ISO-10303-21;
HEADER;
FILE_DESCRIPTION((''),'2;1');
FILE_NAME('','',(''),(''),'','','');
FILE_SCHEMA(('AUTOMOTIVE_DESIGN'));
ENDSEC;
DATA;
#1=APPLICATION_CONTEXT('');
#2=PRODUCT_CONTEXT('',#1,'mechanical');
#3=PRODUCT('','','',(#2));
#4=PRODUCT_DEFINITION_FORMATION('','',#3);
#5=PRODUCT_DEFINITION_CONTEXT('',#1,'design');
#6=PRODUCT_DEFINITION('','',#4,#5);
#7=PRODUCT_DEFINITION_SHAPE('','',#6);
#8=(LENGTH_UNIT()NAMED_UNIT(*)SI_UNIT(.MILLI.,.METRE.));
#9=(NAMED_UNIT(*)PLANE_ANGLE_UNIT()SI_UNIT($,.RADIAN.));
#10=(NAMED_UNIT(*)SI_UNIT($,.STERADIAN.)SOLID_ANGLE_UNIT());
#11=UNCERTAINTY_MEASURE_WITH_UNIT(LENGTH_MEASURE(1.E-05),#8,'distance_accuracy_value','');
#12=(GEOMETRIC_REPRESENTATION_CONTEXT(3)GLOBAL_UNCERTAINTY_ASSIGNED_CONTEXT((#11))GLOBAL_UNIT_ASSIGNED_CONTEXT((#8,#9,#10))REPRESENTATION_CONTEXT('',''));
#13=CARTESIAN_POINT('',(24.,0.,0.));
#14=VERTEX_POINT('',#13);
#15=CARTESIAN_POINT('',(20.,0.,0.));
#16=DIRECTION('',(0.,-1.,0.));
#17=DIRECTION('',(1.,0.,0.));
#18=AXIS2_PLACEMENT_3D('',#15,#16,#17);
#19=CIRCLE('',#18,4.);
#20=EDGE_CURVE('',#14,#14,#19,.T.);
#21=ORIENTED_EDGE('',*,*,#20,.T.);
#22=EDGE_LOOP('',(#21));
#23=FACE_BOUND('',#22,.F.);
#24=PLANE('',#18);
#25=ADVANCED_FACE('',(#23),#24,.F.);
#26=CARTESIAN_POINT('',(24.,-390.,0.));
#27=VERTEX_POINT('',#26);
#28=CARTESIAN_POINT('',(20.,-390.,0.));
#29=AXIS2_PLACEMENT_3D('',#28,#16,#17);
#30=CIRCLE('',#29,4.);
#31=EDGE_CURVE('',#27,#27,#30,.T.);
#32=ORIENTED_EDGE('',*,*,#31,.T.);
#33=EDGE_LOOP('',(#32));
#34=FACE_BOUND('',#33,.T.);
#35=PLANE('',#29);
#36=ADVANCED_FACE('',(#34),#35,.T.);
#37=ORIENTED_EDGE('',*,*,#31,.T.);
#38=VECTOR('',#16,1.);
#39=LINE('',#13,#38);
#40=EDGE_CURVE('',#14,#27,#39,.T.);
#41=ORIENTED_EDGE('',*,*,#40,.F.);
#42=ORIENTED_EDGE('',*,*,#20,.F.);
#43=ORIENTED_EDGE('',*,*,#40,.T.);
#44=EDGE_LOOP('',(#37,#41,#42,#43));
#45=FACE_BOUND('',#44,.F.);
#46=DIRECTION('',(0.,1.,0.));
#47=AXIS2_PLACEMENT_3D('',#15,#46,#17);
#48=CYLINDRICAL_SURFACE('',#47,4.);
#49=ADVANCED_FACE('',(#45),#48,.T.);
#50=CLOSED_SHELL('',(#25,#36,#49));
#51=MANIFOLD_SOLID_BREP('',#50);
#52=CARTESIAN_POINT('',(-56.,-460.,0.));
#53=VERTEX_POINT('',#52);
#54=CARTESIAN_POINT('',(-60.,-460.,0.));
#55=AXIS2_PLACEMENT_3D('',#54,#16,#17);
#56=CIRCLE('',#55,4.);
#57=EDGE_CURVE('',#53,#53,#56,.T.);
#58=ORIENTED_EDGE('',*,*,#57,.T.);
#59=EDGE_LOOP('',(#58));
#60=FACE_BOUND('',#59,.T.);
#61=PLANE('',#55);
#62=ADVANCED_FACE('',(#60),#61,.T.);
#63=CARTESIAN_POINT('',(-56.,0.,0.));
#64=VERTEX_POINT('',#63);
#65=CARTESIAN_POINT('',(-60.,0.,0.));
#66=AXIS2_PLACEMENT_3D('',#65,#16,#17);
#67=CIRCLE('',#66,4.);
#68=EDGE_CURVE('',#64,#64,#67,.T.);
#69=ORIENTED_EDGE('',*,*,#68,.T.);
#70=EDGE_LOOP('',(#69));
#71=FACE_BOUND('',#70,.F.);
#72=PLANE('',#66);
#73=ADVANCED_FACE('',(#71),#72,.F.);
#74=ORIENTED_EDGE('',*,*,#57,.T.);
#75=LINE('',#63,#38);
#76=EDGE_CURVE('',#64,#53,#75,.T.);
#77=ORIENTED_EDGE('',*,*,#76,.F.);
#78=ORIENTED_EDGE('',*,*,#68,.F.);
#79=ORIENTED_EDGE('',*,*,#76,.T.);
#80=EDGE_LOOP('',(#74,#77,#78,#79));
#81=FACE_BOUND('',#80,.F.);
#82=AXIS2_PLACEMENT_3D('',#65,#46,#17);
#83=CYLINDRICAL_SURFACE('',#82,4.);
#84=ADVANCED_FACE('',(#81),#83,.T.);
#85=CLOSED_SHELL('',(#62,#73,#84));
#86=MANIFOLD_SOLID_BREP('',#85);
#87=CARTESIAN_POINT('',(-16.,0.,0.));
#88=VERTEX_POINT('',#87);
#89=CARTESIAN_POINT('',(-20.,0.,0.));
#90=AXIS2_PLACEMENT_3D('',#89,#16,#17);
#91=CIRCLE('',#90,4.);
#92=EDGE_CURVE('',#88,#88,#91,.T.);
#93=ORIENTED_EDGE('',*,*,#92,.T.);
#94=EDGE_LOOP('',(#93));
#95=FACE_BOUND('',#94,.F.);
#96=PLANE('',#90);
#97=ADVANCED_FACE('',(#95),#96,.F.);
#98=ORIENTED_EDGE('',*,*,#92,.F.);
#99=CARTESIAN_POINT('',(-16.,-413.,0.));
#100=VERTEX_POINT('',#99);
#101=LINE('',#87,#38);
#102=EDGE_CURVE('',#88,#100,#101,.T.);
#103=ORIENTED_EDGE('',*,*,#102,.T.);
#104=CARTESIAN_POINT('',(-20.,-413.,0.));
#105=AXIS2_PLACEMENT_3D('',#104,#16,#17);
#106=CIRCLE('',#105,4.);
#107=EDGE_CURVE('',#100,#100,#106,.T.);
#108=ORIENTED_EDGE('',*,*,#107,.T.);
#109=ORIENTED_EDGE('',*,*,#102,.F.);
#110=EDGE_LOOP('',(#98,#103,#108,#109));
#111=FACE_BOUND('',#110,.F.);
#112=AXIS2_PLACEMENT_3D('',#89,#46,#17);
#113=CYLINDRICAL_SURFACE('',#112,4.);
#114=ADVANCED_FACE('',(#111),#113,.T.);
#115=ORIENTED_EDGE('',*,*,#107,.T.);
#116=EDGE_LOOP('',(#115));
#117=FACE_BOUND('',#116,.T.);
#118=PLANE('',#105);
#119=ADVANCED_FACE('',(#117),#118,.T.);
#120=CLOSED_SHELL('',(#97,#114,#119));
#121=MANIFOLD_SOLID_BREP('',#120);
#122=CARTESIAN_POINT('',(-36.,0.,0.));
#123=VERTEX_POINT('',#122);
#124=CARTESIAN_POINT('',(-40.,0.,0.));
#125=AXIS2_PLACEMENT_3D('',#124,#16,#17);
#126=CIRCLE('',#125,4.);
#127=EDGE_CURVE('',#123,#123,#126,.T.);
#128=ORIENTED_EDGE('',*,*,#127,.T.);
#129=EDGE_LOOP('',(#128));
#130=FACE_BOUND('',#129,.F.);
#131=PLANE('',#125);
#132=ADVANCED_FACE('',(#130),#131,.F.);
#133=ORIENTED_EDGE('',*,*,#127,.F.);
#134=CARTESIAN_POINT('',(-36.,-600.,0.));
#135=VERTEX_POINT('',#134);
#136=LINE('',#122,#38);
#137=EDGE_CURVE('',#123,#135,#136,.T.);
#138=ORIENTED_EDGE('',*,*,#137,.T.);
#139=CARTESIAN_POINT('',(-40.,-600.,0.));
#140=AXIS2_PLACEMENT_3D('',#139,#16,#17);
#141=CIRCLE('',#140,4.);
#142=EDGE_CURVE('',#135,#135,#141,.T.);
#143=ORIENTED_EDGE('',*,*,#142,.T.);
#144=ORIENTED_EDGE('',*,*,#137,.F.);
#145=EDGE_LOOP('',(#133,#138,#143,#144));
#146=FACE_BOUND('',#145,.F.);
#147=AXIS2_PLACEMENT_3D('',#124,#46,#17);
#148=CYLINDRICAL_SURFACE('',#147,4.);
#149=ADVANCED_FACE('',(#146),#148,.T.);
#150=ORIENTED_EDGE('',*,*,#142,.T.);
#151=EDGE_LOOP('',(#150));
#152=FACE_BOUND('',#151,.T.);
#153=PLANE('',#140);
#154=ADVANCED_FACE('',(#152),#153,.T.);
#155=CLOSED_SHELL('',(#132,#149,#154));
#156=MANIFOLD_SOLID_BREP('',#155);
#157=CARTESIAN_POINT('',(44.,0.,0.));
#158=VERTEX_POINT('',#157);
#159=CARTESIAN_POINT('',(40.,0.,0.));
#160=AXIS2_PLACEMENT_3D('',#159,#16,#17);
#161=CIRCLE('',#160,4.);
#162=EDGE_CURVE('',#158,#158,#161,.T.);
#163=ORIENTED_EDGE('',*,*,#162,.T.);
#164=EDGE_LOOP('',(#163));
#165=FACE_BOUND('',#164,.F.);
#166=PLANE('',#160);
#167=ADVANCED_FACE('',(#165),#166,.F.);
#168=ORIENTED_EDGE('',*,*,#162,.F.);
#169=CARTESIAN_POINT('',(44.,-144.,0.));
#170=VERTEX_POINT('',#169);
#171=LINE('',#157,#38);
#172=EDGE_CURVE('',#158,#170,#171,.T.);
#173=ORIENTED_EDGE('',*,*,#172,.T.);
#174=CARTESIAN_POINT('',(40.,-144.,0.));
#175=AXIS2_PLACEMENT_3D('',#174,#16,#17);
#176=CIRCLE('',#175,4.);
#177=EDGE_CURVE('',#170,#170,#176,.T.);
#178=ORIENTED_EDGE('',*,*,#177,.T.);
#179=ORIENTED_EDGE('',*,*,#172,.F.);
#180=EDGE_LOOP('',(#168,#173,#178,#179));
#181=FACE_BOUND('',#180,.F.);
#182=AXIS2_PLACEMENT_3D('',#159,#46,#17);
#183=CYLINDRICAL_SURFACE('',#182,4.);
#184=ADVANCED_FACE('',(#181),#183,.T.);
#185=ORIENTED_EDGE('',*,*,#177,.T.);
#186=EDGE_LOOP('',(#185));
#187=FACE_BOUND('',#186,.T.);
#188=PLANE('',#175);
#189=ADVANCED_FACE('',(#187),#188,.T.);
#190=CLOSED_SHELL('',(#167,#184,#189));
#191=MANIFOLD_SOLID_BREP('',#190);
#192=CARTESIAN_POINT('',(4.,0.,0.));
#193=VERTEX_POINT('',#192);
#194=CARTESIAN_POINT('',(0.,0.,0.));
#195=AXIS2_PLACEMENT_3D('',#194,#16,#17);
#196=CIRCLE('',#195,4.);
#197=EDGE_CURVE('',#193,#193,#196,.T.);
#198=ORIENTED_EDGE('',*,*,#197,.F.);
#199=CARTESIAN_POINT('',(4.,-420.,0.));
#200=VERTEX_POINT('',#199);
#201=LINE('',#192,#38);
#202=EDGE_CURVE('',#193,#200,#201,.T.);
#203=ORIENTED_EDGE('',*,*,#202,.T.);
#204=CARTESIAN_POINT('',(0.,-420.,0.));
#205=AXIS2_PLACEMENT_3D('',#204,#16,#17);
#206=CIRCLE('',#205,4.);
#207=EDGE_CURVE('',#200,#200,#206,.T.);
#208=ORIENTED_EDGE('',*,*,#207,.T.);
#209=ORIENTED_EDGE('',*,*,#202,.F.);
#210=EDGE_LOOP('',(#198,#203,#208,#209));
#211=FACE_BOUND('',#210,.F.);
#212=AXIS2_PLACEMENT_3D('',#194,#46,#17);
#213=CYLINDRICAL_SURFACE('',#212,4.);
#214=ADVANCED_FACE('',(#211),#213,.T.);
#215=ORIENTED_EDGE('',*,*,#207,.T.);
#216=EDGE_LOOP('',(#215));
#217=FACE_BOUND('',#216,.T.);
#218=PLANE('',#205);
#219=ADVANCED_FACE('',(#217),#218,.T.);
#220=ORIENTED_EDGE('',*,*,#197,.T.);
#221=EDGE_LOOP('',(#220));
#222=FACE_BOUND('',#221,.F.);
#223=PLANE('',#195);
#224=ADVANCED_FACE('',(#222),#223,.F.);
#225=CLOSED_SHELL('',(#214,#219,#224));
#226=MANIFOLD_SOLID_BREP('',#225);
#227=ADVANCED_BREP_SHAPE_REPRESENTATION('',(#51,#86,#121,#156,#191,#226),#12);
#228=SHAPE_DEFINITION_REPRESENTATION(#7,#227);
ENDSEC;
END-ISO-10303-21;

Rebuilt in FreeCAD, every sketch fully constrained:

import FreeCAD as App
import Part
import Sketcher

doc = App.newDocument("Part")
body = doc.addObject("PartDesign::Body", "Body")

# Sketch on XZ plane
sketch1 = body.newObject("Sketcher::SketchObject", "Sketch")
sketch1.AttachmentSupport = (doc.getObject("XZ_Plane"), [""])
sketch1.MapMode = "FlatFace"
sketch1.addGeometry(Part.Circle(App.Vector(0, 0, 0), App.Vector(0, 0, 1), 4), False)
sketch1.addConstraint([
    Sketcher.Constraint("Coincident", 0, 3, -1, 1),
    Sketcher.Constraint("Diameter", 0, 8.0),
])
pad1 = body.newObject("PartDesign::Pad", "Pad")
pad1.Profile = sketch1
pad1.Length = 420
body2 = doc.addObject("PartDesign::Body", "Body001")

# Sketch on XZ plane
sketch2 = body2.newObject("Sketcher::SketchObject", "Sketch001")
sketch2.AttachmentSupport = (doc.getObject("XZ_Plane001"), [""])
sketch2.MapMode = "FlatFace"
sketch2.addGeometry(Part.Circle(App.Vector(20, 0, 0), App.Vector(0, 0, 1), 4), False)
sketch2.addConstraint([
    Sketcher.Constraint("PointOnObject", 0, 3, -1),
    Sketcher.Constraint("Diameter", 0, 8.0),
    Sketcher.Constraint("DistanceX", -1, 1, 0, 3, 20.0),
])
pad2 = body2.newObject("PartDesign::Pad", "Pad001")
pad2.Profile = sketch2
pad2.Length = 390
body3 = doc.addObject("PartDesign::Body", "Body002")

# Sketch on XZ plane
sketch3 = body3.newObject("Sketcher::SketchObject", "Sketch002")
sketch3.AttachmentSupport = (doc.getObject("XZ_Plane002"), [""])
sketch3.MapMode = "FlatFace"
sketch3.addGeometry(Part.Circle(App.Vector(-20, 0, 0), App.Vector(0, 0, 1), 4), False)
sketch3.addConstraint([
    Sketcher.Constraint("PointOnObject", 0, 3, -1),
    Sketcher.Constraint("Diameter", 0, 8.0),
    Sketcher.Constraint("DistanceX", 0, 3, -1, 1, 20.0),
])
pad3 = body3.newObject("PartDesign::Pad", "Pad002")
pad3.Profile = sketch3
pad3.Length = 413
body4 = doc.addObject("PartDesign::Body", "Body003")

# Sketch on XZ plane
sketch4 = body4.newObject("Sketcher::SketchObject", "Sketch003")
sketch4.AttachmentSupport = (doc.getObject("XZ_Plane003"), [""])
sketch4.MapMode = "FlatFace"
sketch4.addGeometry(Part.Circle(App.Vector(-40, 0, 0), App.Vector(0, 0, 1), 4), False)
sketch4.addConstraint([
    Sketcher.Constraint("PointOnObject", 0, 3, -1),
    Sketcher.Constraint("Diameter", 0, 8.0),
    Sketcher.Constraint("DistanceX", 0, 3, -1, 1, 40.0),
])
pad4 = body4.newObject("PartDesign::Pad", "Pad003")
pad4.Profile = sketch4
pad4.Length = 600
body5 = doc.addObject("PartDesign::Body", "Body004")

# Sketch on XZ plane
sketch5 = body5.newObject("Sketcher::SketchObject", "Sketch004")
sketch5.AttachmentSupport = (doc.getObject("XZ_Plane004"), [""])
sketch5.MapMode = "FlatFace"
sketch5.addGeometry(Part.Circle(App.Vector(-60, 0, 0), App.Vector(0, 0, 1), 4), False)
sketch5.addConstraint([
    Sketcher.Constraint("PointOnObject", 0, 3, -1),
    Sketcher.Constraint("Diameter", 0, 8.0),
    Sketcher.Constraint("DistanceX", 0, 3, -1, 1, 60.0),
])
pad5 = body5.newObject("PartDesign::Pad", "Pad004")
pad5.Profile = sketch5
pad5.Length = 460
body6 = doc.addObject("PartDesign::Body", "Body005")

# Sketch on XZ plane
sketch6 = body6.newObject("Sketcher::SketchObject", "Sketch005")
sketch6.AttachmentSupport = (doc.getObject("XZ_Plane005"), [""])
sketch6.MapMode = "FlatFace"
sketch6.addGeometry(Part.Circle(App.Vector(40, 0, 0), App.Vector(0, 0, 1), 4), False)
sketch6.addConstraint([
    Sketcher.Constraint("PointOnObject", 0, 3, -1),
    Sketcher.Constraint("Diameter", 0, 8.0),
    Sketcher.Constraint("DistanceX", -1, 1, 0, 3, 40.0),
])
pad6 = body6.newObject("PartDesign::Pad", "Pad005")
pad6.Profile = sketch6
pad6.Length = 144

doc.recompute()
